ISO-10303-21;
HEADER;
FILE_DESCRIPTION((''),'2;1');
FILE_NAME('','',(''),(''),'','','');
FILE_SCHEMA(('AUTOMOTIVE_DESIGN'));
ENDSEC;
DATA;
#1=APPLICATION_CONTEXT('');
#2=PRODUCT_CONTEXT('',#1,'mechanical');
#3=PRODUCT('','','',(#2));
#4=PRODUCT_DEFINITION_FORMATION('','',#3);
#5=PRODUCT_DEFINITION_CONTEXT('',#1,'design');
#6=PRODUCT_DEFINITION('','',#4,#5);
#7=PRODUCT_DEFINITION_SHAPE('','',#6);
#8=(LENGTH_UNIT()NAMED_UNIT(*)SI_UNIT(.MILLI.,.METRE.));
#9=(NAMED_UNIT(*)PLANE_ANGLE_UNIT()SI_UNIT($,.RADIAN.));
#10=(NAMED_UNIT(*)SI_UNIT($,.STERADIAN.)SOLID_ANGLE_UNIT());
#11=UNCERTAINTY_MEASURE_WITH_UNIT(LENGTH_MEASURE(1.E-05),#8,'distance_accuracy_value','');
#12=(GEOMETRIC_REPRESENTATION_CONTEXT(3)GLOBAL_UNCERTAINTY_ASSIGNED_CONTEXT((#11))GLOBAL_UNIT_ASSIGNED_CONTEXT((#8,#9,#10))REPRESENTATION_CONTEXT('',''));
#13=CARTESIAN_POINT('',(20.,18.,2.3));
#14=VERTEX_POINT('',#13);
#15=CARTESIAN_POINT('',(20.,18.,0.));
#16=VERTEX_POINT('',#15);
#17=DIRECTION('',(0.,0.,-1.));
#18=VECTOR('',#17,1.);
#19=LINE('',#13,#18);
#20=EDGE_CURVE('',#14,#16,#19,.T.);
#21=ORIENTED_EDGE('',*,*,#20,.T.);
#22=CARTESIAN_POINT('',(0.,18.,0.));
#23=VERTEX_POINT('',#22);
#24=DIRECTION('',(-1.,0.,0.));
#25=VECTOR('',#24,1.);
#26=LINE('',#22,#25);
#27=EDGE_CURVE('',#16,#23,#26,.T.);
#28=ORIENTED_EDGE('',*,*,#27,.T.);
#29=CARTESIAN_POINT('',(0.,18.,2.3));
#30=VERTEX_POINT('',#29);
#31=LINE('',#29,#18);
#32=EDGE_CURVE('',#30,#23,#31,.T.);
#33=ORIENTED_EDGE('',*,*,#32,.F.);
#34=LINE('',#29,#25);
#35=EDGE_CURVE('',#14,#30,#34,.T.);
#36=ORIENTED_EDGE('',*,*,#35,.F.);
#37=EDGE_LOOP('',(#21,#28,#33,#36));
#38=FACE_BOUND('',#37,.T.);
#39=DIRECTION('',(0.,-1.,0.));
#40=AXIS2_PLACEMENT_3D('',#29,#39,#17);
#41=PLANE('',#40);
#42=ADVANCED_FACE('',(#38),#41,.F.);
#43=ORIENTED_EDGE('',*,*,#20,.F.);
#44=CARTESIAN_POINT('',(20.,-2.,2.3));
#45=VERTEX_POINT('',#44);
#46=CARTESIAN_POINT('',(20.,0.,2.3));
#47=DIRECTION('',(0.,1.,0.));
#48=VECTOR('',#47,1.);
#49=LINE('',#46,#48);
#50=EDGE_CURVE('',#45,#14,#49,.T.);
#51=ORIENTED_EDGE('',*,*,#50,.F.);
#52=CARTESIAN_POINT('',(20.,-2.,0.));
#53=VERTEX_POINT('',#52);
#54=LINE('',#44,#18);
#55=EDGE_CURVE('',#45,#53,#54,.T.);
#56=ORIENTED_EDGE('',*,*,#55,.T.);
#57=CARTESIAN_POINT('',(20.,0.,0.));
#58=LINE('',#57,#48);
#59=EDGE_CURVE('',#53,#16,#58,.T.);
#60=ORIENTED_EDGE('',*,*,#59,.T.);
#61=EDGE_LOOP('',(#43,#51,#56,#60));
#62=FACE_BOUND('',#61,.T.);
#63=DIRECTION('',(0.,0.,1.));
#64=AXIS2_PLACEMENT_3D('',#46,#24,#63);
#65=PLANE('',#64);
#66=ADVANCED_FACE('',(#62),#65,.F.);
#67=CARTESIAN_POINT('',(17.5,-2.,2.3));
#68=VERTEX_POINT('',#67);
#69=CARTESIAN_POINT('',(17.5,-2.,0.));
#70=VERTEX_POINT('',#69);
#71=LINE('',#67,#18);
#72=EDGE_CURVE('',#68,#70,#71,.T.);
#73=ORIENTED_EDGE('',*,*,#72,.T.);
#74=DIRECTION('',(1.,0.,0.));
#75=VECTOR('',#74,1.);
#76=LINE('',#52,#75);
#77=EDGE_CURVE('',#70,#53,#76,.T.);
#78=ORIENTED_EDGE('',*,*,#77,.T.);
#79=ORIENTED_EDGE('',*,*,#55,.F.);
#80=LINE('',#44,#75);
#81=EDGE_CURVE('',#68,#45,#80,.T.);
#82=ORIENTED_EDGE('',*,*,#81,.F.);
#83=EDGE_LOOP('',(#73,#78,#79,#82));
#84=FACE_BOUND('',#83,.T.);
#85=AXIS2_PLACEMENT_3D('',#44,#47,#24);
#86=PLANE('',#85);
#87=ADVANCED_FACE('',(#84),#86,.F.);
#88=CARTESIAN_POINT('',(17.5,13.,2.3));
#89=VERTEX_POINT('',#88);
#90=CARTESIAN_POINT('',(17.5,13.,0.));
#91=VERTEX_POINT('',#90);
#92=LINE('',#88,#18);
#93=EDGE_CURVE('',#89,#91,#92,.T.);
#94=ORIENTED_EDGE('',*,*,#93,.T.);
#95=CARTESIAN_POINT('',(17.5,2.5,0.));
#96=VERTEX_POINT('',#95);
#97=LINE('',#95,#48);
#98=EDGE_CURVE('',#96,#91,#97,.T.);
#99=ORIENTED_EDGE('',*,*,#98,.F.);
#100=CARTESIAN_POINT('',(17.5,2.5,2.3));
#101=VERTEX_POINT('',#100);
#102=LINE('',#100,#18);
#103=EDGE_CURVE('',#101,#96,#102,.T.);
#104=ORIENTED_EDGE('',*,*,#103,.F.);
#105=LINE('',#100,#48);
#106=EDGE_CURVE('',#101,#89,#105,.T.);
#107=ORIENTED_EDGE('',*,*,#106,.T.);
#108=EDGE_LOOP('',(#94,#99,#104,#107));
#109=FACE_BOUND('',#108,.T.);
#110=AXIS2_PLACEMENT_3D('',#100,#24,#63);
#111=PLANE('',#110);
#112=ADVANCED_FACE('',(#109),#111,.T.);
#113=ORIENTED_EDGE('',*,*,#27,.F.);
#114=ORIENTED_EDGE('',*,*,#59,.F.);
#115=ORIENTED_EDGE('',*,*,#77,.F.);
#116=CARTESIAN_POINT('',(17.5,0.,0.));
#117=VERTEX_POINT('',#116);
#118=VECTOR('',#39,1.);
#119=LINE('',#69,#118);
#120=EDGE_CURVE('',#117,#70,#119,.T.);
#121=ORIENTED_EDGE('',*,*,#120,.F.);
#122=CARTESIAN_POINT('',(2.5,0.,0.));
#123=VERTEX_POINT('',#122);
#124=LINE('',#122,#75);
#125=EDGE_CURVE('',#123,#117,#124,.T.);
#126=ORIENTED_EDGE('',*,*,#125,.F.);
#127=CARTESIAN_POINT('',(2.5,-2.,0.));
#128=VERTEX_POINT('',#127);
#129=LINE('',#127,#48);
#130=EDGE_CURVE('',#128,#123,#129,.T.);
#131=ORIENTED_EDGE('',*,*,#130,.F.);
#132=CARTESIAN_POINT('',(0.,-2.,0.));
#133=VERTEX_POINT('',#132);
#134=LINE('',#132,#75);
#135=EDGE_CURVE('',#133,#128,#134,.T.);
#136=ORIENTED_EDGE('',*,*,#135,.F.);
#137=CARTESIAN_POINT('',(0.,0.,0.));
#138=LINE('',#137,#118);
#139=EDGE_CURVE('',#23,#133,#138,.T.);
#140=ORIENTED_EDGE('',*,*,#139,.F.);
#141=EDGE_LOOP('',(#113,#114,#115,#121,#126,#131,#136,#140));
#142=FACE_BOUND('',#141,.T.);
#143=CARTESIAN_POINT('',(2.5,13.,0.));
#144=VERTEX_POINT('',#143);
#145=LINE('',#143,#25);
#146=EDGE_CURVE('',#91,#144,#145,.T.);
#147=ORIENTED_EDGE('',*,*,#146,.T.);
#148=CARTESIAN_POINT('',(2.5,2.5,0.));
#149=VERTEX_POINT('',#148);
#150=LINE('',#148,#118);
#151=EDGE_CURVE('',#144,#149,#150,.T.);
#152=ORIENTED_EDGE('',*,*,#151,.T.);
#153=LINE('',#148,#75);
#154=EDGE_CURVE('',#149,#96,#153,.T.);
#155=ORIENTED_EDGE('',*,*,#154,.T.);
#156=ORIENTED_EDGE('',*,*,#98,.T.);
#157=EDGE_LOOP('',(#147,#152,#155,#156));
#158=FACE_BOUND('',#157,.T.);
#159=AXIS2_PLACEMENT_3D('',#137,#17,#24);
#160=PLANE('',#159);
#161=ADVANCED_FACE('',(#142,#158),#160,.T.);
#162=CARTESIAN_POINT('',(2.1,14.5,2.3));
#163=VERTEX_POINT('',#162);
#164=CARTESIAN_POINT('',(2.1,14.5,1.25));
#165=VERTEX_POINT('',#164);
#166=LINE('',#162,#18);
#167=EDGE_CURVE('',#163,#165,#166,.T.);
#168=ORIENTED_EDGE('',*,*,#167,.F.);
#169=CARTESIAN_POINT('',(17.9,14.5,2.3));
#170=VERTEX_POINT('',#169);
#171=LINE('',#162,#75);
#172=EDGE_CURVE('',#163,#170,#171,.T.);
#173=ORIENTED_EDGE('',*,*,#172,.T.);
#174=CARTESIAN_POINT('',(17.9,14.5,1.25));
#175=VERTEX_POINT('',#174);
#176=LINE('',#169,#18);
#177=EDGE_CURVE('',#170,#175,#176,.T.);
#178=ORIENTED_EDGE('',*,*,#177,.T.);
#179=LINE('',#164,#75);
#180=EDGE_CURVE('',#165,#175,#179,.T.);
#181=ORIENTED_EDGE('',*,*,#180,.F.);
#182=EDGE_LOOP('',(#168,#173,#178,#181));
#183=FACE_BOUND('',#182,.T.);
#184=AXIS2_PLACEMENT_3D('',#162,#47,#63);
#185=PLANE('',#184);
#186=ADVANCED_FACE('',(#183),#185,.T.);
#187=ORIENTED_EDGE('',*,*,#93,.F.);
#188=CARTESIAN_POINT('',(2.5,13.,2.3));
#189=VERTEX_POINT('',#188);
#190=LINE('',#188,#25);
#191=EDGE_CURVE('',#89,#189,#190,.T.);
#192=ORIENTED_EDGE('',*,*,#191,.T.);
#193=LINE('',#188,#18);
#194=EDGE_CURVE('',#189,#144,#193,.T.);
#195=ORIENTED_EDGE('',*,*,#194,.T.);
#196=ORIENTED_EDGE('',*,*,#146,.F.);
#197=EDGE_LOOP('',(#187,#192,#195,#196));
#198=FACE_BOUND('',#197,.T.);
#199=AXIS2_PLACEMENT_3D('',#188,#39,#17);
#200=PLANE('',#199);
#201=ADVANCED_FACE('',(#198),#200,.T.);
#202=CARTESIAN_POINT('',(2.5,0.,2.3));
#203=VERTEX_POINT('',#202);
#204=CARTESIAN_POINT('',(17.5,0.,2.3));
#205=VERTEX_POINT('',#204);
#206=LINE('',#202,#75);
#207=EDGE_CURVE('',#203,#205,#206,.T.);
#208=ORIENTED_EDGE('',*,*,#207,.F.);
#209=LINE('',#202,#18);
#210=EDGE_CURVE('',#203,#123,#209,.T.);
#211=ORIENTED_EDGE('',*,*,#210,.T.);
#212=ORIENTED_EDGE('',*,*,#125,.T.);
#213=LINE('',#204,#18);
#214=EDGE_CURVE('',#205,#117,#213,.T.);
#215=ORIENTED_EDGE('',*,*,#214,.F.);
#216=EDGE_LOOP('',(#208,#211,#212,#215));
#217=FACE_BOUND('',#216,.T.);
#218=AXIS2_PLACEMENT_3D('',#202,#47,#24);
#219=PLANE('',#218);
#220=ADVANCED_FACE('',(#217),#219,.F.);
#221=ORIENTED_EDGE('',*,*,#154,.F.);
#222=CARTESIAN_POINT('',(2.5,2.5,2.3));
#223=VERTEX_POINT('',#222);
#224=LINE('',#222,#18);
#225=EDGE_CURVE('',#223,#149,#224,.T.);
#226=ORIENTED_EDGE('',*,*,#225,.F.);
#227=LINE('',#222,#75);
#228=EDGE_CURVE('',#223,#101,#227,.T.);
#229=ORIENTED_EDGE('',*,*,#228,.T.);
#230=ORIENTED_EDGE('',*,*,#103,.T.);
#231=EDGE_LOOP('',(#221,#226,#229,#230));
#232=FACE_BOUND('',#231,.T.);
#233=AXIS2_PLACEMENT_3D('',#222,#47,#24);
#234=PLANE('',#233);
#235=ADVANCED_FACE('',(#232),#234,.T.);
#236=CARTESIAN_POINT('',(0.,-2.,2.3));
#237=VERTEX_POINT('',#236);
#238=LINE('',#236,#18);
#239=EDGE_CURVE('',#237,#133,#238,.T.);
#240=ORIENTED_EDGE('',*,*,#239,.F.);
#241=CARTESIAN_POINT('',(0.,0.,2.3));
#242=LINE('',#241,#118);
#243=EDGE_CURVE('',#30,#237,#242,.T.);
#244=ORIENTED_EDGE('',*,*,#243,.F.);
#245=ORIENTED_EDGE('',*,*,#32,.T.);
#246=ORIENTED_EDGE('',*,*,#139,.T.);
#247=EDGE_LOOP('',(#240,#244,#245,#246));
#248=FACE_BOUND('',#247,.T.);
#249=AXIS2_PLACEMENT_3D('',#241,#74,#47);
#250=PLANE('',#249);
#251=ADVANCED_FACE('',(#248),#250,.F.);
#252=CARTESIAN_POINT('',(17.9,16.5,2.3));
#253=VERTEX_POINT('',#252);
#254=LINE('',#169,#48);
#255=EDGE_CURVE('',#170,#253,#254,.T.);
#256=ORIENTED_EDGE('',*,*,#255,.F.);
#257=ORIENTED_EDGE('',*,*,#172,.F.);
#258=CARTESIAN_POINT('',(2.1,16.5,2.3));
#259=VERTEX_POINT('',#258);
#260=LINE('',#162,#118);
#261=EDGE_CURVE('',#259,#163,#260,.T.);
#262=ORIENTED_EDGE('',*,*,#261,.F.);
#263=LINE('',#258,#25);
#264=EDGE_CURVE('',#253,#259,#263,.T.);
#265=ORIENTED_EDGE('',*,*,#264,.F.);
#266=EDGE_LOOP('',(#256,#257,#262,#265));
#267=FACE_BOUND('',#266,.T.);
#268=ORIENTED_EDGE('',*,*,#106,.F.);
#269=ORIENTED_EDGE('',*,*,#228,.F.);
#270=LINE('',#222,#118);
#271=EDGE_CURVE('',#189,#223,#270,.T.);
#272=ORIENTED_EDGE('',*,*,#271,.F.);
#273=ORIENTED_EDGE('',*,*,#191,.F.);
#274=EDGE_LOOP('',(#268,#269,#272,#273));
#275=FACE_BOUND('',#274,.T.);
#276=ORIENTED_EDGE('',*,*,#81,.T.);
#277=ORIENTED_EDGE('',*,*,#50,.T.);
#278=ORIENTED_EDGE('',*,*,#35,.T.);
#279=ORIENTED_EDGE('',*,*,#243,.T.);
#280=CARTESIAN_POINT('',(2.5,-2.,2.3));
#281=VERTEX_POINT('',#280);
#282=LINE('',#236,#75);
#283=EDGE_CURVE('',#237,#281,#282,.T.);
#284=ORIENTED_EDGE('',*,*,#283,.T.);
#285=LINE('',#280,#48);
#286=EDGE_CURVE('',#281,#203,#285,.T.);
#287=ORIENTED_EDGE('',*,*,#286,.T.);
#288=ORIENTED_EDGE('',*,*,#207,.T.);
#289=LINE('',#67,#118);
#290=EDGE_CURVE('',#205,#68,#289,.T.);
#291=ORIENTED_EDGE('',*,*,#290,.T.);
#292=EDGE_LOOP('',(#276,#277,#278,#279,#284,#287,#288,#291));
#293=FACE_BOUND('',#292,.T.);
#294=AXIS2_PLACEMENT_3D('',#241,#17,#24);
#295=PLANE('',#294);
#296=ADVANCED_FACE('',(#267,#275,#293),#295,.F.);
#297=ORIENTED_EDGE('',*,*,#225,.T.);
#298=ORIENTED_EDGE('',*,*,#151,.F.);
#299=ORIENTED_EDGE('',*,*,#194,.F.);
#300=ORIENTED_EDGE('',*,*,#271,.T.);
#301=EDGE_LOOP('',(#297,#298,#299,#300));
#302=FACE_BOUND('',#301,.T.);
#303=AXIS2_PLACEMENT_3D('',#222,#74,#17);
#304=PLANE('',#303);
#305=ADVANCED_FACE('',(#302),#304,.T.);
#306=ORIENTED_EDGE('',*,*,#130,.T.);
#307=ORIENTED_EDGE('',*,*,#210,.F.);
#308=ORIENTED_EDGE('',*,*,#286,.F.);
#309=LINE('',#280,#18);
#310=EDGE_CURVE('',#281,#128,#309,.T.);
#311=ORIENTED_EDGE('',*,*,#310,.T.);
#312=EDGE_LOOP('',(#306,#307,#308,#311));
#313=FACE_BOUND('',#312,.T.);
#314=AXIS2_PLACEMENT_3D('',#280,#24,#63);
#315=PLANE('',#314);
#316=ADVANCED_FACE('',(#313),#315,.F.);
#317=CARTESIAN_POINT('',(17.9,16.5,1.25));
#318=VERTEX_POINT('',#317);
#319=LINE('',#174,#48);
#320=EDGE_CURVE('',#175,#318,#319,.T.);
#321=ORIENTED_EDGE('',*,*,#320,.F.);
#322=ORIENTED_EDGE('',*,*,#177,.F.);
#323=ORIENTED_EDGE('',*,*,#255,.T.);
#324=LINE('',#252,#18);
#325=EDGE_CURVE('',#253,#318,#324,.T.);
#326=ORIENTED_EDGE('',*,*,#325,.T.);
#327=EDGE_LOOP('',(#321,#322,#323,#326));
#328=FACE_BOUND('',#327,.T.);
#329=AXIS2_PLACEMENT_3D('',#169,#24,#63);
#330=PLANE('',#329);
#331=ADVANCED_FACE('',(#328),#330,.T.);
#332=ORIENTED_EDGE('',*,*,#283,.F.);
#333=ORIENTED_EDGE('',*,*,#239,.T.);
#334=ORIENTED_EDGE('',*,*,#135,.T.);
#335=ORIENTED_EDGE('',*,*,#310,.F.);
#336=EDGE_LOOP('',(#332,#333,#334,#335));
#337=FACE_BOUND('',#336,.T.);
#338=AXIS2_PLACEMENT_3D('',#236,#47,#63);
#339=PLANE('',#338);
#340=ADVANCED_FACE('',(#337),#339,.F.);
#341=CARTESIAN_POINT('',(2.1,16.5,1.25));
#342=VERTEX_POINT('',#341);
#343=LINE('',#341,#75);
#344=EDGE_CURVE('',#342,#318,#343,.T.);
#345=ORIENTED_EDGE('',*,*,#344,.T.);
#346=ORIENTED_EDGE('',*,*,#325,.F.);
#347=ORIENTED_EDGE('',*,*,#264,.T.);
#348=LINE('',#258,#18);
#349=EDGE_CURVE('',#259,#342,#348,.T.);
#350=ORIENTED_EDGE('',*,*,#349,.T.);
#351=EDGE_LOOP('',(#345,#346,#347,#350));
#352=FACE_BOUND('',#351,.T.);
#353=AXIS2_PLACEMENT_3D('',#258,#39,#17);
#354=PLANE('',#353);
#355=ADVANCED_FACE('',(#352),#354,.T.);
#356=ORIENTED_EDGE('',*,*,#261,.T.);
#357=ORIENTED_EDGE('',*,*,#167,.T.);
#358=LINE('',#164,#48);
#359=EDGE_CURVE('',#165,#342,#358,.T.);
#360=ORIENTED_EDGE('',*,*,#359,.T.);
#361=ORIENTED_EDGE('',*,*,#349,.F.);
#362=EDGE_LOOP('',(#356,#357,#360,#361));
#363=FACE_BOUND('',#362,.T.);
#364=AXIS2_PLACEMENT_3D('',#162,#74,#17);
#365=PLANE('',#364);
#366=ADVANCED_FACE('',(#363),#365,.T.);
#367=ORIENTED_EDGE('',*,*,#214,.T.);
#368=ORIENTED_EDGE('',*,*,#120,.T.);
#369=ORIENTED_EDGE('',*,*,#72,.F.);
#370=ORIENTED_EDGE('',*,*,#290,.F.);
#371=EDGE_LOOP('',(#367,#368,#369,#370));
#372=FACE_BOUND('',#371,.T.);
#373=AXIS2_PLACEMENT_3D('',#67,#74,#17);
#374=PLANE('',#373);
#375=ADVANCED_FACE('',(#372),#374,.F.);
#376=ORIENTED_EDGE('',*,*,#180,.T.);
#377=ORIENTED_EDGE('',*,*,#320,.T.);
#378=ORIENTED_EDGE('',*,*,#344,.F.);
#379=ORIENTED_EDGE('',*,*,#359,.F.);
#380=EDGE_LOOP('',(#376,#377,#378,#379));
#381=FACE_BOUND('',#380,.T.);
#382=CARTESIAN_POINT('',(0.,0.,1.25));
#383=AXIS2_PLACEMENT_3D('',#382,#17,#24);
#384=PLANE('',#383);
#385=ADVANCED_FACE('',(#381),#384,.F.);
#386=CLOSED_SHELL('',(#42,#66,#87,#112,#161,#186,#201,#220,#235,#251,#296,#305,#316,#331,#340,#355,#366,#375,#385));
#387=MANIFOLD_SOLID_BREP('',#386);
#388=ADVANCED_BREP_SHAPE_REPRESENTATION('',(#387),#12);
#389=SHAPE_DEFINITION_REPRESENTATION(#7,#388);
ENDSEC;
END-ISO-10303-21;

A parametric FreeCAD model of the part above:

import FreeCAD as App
import Part
import Sketcher

V = App.Vector


def add_polygon(sketch, points):
    """Adds a closed chain of lines whose ends are joined by coincident constraints."""
    first, n = sketch.GeometryCount, len(points)
    for a, b in zip(points, points[1:] + points[:1]):
        sketch.addGeometry(Part.LineSegment(App.Vector(*a, 0), App.Vector(*b, 0)), False)
    for i in range(n):
        sketch.addConstraint(Sketcher.Constraint("Coincident", first + i, 2, first + (i + 1) % n, 1))

doc = App.newDocument("Part")
body = doc.addObject("PartDesign::Body", "Body")

# Sketch on XY plane
sketch1 = body.newObject("Sketcher::SketchObject", "Sketch")
sketch1.AttachmentSupport = (doc.getObject("XY_Plane"), [""])
sketch1.MapMode = "FlatFace"
add_polygon(sketch1, [(0, -2), (2.5, -2), (2.5, 0), (17.5, 0), (17.5, -2), (20, -2), (20, 18), (0, 18)])  # lines 0-7
add_polygon(sketch1, [(17.5, 2.5), (2.5, 2.5), (2.5, 13), (17.5, 13)])  # lines 8-11
add_polygon(sketch1, [(17.9, 14.5), (2.1, 14.5), (2.1, 16.5), (17.9, 16.5)])  # lines 12-15
sketch1.addConstraint(Sketcher.Constraint("Horizontal", 0))
sketch1.addConstraint(Sketcher.Constraint("Vertical", 1))
sketch1.addConstraint(Sketcher.Constraint("Horizontal", 2))
sketch1.addConstraint(Sketcher.Constraint("Vertical", 3))
sketch1.addConstraint(Sketcher.Constraint("Horizontal", 4))
sketch1.addConstraint(Sketcher.Constraint("Vertical", 5))
sketch1.addConstraint(Sketcher.Constraint("Horizontal", 6))
sketch1.addConstraint(Sketcher.Constraint("Vertical", 7))
sketch1.addConstraint(Sketcher.Constraint("Horizontal", 8))
sketch1.addConstraint(Sketcher.Constraint("Vertical", 9))
sketch1.addConstraint(Sketcher.Constraint("Horizontal", 10))
sketch1.addConstraint(Sketcher.Constraint("Vertical", 11))
sketch1.addConstraint(Sketcher.Constraint("Horizontal", 12))
sketch1.addConstraint(Sketcher.Constraint("Vertical", 13))
sketch1.addConstraint(Sketcher.Constraint("Horizontal", 14))
sketch1.addConstraint(Sketcher.Constraint("Vertical", 15))
sketch1.addConstraint(Sketcher.Constraint("PointOnObject", 1, 2, -1))
sketch1.addConstraint(Sketcher.Constraint("PointOnObject", 6, 2, -2))
sketch1.addConstraint(Sketcher.Constraint("Horizontal", 0, 2, 3, 2))
sketch1.addConstraint(Sketcher.Constraint("Vertical", 1, 2, 8, 2))
sketch1.addConstraint(Sketcher.Constraint("Vertical", 3, 2, 10, 2))
sketch1.addConstraint(Sketcher.Constraint("Equal", 0, 4))
sketch1.addConstraint(Sketcher.Constraint("Equal", 6, 5))
sketch1.addConstraint(Sketcher.Constraint("Equal", 3, 13))
sketch1.addConstraint(Sketcher.Constraint("DistanceX", 2, 1, 2, 2, 15.0))
sketch1.addConstraint(Sketcher.Constraint("DistanceX", 6, 2, 6, 1, 20.0))
sketch1.addConstraint(Sketcher.Constraint("DistanceY", 1, 1, 1, 2, 2.0))
sketch1.addConstraint(Sketcher.Constraint("DistanceX", 12, 2, 12, 1, 15.8))
sketch1.addConstraint(Sketcher.Constraint("DistanceY", 9, 1, 9, 2, 10.5))
sketch1.addConstraint(Sketcher.Constraint("DistanceY", -1, 1, 9, 2, 13.0))
sketch1.addConstraint(Sketcher.Constraint("DistanceY", 8, 2, 12, 2, 12.0))
sketch1.addConstraint(Sketcher.Constraint("DistanceX", -1, 1, 12, 2, 2.1))
pad1 = body.newObject("PartDesign::Pad", "Pad")
pad1.Profile = sketch1
pad1.Length = 2.3

# Sketch on XY plane
sketch2 = body.newObject("Sketcher::SketchObject", "Sketch001")
sketch2.AttachmentSupport = (doc.getObject("XY_Plane"), [""])
sketch2.MapMode = "FlatFace"
add_polygon(sketch2, [(2.1, 16.5), (2.1, 14.5), (17.9, 14.5), (17.9, 16.5)])  # lines 0-3
sketch2.addConstraint(Sketcher.Constraint("Vertical", 0))
sketch2.addConstraint(Sketcher.Constraint("Horizontal", 1))
sketch2.addConstraint(Sketcher.Constraint("Vertical", 2))
sketch2.addConstraint(Sketcher.Constraint("Horizontal", 3))
sketch2.addConstraint(Sketcher.Constraint("DistanceY", 0, 2, 0, 1, 2.0))
sketch2.addConstraint(Sketcher.Constraint("DistanceX", 1, 1, 1, 2, 15.8))
sketch2.addConstraint(Sketcher.Constraint("DistanceX", -1, 1, 0, 2, 2.1))
sketch2.addConstraint(Sketcher.Constraint("DistanceY", -1, 1, 0, 2, 14.5))
pad2 = body.newObject("PartDesign::Pad", "Pad001")
pad2.Profile = sketch2
pad2.Length = 1.25

doc.recompute()
